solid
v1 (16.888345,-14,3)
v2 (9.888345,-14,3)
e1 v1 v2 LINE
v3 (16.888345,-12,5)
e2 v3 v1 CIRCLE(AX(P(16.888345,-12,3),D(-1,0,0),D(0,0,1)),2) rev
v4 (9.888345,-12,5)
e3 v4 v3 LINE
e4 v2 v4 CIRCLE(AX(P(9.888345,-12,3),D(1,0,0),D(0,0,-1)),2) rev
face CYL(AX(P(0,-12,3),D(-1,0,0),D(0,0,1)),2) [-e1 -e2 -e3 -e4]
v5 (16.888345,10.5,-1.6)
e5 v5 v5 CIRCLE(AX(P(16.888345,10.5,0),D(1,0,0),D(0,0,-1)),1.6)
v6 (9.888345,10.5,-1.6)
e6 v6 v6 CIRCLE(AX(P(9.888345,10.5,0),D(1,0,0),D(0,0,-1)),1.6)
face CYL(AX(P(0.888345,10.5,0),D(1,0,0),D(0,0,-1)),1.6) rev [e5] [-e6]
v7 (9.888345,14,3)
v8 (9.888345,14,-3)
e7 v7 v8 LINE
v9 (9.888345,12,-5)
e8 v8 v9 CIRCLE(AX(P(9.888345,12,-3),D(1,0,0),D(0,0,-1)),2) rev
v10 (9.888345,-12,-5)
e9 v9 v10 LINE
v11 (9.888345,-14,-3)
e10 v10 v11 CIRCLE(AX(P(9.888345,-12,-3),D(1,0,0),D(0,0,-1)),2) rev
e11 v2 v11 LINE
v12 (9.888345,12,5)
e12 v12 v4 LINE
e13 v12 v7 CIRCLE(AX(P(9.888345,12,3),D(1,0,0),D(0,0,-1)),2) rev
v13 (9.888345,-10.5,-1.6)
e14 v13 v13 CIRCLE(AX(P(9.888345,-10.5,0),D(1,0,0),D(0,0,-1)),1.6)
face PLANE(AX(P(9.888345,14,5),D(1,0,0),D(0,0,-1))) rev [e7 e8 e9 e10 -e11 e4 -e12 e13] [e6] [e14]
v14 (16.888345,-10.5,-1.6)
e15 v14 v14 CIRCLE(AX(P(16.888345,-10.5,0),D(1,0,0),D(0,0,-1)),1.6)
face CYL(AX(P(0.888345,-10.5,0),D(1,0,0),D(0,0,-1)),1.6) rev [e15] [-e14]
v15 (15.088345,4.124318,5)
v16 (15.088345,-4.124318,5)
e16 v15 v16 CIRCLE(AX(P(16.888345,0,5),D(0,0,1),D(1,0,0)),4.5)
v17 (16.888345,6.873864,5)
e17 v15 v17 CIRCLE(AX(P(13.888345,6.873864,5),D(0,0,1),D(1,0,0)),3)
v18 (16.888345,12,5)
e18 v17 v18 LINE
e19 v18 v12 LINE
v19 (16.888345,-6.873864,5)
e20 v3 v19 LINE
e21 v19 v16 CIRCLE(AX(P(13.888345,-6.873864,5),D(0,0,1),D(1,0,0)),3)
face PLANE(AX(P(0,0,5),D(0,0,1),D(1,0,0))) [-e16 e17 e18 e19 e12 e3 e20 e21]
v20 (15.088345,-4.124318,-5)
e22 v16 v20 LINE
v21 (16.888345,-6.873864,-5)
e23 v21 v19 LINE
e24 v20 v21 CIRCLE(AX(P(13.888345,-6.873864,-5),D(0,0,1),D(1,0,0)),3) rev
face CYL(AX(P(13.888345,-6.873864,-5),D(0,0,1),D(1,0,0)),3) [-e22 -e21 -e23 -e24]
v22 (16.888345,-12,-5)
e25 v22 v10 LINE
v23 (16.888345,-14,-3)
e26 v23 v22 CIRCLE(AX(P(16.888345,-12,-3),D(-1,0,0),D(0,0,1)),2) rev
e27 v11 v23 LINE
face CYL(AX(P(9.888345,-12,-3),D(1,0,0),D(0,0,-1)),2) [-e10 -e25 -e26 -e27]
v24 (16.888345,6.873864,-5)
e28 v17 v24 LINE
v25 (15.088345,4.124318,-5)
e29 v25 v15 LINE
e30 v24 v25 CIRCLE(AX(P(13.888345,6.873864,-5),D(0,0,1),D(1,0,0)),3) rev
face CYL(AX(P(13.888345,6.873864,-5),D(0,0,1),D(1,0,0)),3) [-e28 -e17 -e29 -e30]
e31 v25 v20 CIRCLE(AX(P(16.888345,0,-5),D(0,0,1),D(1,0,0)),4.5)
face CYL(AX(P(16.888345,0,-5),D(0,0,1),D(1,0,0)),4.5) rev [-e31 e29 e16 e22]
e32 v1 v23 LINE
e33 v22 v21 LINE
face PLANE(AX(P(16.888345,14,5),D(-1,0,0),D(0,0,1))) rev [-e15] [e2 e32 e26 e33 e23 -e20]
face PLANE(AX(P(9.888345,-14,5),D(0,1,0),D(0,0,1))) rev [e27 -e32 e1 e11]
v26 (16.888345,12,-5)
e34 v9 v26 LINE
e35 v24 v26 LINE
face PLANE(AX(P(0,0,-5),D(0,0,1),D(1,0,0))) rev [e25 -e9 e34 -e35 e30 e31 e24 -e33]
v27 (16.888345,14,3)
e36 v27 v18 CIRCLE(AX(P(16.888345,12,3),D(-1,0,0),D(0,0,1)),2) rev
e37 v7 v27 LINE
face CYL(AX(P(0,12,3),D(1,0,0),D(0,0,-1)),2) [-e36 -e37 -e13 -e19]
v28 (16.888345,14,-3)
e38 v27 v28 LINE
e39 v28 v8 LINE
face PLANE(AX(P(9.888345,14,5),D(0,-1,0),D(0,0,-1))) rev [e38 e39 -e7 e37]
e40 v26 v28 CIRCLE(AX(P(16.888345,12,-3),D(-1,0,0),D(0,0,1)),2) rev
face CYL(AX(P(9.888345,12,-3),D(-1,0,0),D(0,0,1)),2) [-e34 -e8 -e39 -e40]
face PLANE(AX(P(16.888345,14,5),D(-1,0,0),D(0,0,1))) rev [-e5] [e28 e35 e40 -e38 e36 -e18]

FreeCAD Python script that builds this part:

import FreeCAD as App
import Part
import Sketcher

V = App.Vector


def edges_at(feature, points):
    """Names of the edges that pass closest to the given points."""
    edges = feature.Shape.Edges
    near = lambda p: min(range(len(edges)), key=lambda i: edges[i].distToShape(Part.Vertex(*p))[0])
    return sorted({f"Edge{near(p) + 1}" for p in points})

doc = App.newDocument("Part")
params = doc.addObject("Spreadsheet::Sheet", "Params")
for row, (alias, value) in enumerate([
    ("sketch1_width", "12 mm"),
    ("sketch1_height", "2.1 mm"),
    ("pad1_length", "6 mm"),
    ("sketch2_width", "12 mm"),
    ("sketch2_height", "2.1 mm"),
    ("pad2_length", "6 mm"),
    ("sketch3_width", "4 mm"),
    ("sketch3_height", "6 mm"),
    ("pad3_length", "6 mm"),
    ("sketch4_width", "7 mm"),
    ("sketch4_height", "28 mm"),
    ("pad4_length", "10 mm"),
    ("sketch5_diameter", "9 mm"),
    ("fillet_radius", "3 mm"),
    ("fillet2_radius", "2 mm"),
    ("sketch6_diameter", "3.2 mm"),
    ("pocket2_length", "16 mm"),
    ("pad5_length", "30 mm"),
], start=1):
    params.set(f"A{row}", alias)
    params.set(f"B{row}", "=" + value)
    params.setAlias(f"B{row}", alias)

body = doc.addObject("PartDesign::Body", "Body")

# Sketch on XY plane
sketch1 = doc.addObject("Sketcher::SketchObject", "Sketch")
body.addObject(sketch1)
sketch1.AttachmentSupport = (doc.XY_Plane, [""])
sketch1.MapMode = "FlatFace"
sketch1.addGeometry(Part.LineSegment(V(-6, 3, 0), V(-6, 0.9, 0)), False)
sketch1.addGeometry(Part.LineSegment(V(-6, 0.9, 0), V(6, 0.9, 0)), False)
sketch1.addGeometry(Part.LineSegment(V(6, 0.9, 0), V(6, 3, 0)), False)
sketch1.addGeometry(Part.LineSegment(V(6, 3, 0), V(-6, 3, 0)), False)
sketch1.addConstraint(Sketcher.Constraint("Coincident", 0, 2, 1, 1))
sketch1.addConstraint(Sketcher.Constraint("Coincident", 1, 2, 2, 1))
sketch1.addConstraint(Sketcher.Constraint("Coincident", 2, 2, 3, 1))
sketch1.addConstraint(Sketcher.Constraint("Coincident", 3, 2, 0, 1))
sketch1.addConstraint(Sketcher.Constraint("Vertical", 0))
sketch1.addConstraint(Sketcher.Constraint("Horizontal", 1))
sketch1.addConstraint(Sketcher.Constraint("Vertical", 2))
sketch1.addConstraint(Sketcher.Constraint("Horizontal", 3))
sketch1.addConstraint(Sketcher.Constraint("DistanceX", 1, 1, 1, 2, 12.0))
sketch1.addConstraint(Sketcher.Constraint("DistanceY", 0, 2, 0, 1, 2.1))
sketch1.addConstraint(Sketcher.Constraint("DistanceX", 0, 2, -1, 1, 6.0))
sketch1.addConstraint(Sketcher.Constraint("DistanceY", -1, 1, 2, 2, 3.0))
sketch1.setExpression("Constraints[8]", "Params.sketch1_width")
sketch1.setExpression("Constraints[9]", "Params.sketch1_height")
pad1 = doc.addObject("PartDesign::Pad", "Pad")
body.addObject(pad1)
pad1.Profile = sketch1
pad1.setExpression("Length", "Params.pad1_length")
pad1.Midplane = True
body2 = doc.addObject("PartDesign::Body", "Body001")

# Sketch on XY plane
sketch2 = doc.addObject("Sketcher::SketchObject", "Sketch001")
body2.addObject(sketch2)
sketch2.AttachmentSupport = (doc.getObject("XY_Plane001"), [""])
sketch2.MapMode = "FlatFace"
sketch2.addGeometry(Part.LineSegment(V(-6, -0.9, 0), V(-6, -3, 0)), False)
sketch2.addGeometry(Part.LineSegment(V(-6, -3, 0), V(6, -3, 0)), False)
sketch2.addGeometry(Part.LineSegment(V(6, -3, 0), V(6, -0.9, 0)), False)
sketch2.addGeometry(Part.LineSegment(V(6, -0.9, 0), V(-6, -0.9, 0)), False)
sketch2.addConstraint(Sketcher.Constraint("Coincident", 0, 2, 1, 1))
sketch2.addConstraint(Sketcher.Constraint("Coincident", 1, 2, 2, 1))
sketch2.addConstraint(Sketcher.Constraint("Coincident", 2, 2, 3, 1))
sketch2.addConstraint(Sketcher.Constraint("Coincident", 3, 2, 0, 1))
sketch2.addConstraint(Sketcher.Constraint("Vertical", 0))
sketch2.addConstraint(Sketcher.Constraint("Horizontal", 1))
sketch2.addConstraint(Sketcher.Constraint("Vertical", 2))
sketch2.addConstraint(Sketcher.Constraint("Horizontal", 3))
sketch2.addConstraint(Sketcher.Constraint("DistanceX", 1, 1, 1, 2, 12.0))
sketch2.addConstraint(Sketcher.Constraint("DistanceY", 0, 2, 0, 1, 2.1))
sketch2.addConstraint(Sketcher.Constraint("DistanceX", 0, 2, -1, 1, 6.0))
sketch2.addConstraint(Sketcher.Constraint("DistanceY", 0, 2, -1, 1, 3.0))
sketch2.setExpression("Constraints[8]", "Params.sketch2_width")
sketch2.setExpression("Constraints[9]", "Params.sketch2_height")
pad2 = doc.addObject("PartDesign::Pad", "Pad001")
body2.addObject(pad2)
pad2.Profile = sketch2
pad2.setExpression("Length", "Params.pad2_length")
pad2.Midplane = True
body3 = doc.addObject("PartDesign::Body", "Body002")

# Sketch on XY plane
sketch3 = doc.addObject("Sketcher::SketchObject", "Sketch002")
body3.addObject(sketch3)
sketch3.AttachmentSupport = (doc.getObject("XY_Plane002"), [""])
sketch3.MapMode = "FlatFace"
sketch3.AttachmentOffset = App.Placement(V(0, 0, 3), App.Rotation())
sketch3.addGeometry(Part.LineSegment(V(6, 3, 0), V(6, -3, 0)), False)
sketch3.addGeometry(Part.LineSegment(V(6, -3, 0), V(10, -3, 0)), False)
sketch3.addGeometry(Part.LineSegment(V(10, -3, 0), V(10, 3, 0)), False)
sketch3.addGeometry(Part.LineSegment(V(10, 3, 0), V(6, 3, 0)), False)
sketch3.addConstraint(Sketcher.Constraint("Coincident", 0, 2, 1, 1))
sketch3.addConstraint(Sketcher.Constraint("Coincident", 1, 2, 2, 1))
sketch3.addConstraint(Sketcher.Constraint("Coincident", 2, 2, 3, 1))
sketch3.addConstraint(Sketcher.Constraint("Coincident", 3, 2, 0, 1))
sketch3.addConstraint(Sketcher.Constraint("Vertical", 0))
sketch3.addConstraint(Sketcher.Constraint("Horizontal", 1))
sketch3.addConstraint(Sketcher.Constraint("Vertical", 2))
sketch3.addConstraint(Sketcher.Constraint("Horizontal", 3))
sketch3.addConstraint(Sketcher.Constraint("DistanceX", 1, 1, 1, 2, 4.0))
sketch3.addConstraint(Sketcher.Constraint("DistanceY", 0, 2, 0, 1, 6.0))
sketch3.addConstraint(Sketcher.Constraint("DistanceX", -1, 1, 0, 2, 6.0))
sketch3.addConstraint(Sketcher.Constraint("DistanceY", 0, 2, -1, 1, 3.0))
sketch3.setExpression("Constraints[8]", "Params.sketch3_width")
sketch3.setExpression("Constraints[9]", "Params.sketch3_height")
pad3 = doc.addObject("PartDesign::Pad", "Pad002")
body3.addObject(pad3)
pad3.Profile = sketch3
pad3.setExpression("Length", "Params.pad3_length")
pad3.Reversed = True

# Sketch on XY plane
sketch4 = doc.addObject("Sketcher::SketchObject", "Sketch003")
body3.addObject(sketch4)
sketch4.AttachmentSupport = (doc.getObject("XY_Plane002"), [""])
sketch4.MapMode = "FlatFace"
sketch4.addGeometry(Part.LineSegment(V(10, 14, 0), V(10, -14, 0)), False)
sketch4.addGeometry(Part.LineSegment(V(10, -14, 0), V(17, -14, 0)), False)
sketch4.addGeometry(Part.LineSegment(V(17, -14, 0), V(17, 14, 0)), False)
sketch4.addGeometry(Part.LineSegment(V(17, 14, 0), V(10, 14, 0)), False)
sketch4.addConstraint(Sketcher.Constraint("Coincident", 0, 2, 1, 1))
sketch4.addConstraint(Sketcher.Constraint("Coincident", 1, 2, 2, 1))
sketch4.addConstraint(Sketcher.Constraint("Coincident", 2, 2, 3, 1))
sketch4.addConstraint(Sketcher.Constraint("Coincident", 3, 2, 0, 1))
sketch4.addConstraint(Sketcher.Constraint("Vertical", 0))
sketch4.addConstraint(Sketcher.Constraint("Horizontal", 1))
sketch4.addConstraint(Sketcher.Constraint("Vertical", 2))
sketch4.addConstraint(Sketcher.Constraint("Horizontal", 3))
sketch4.addConstraint(Sketcher.Constraint("DistanceX", 1, 1, 1, 2, 7.0))
sketch4.addConstraint(Sketcher.Constraint("DistanceY", 0, 2, 0, 1, 28.0))
sketch4.addConstraint(Sketcher.Constraint("DistanceY", 0, 2, -1, 1, 14.0))
sketch4.addConstraint(Sketcher.Constraint("DistanceX", -1, 1, 0, 2, 9.888345))
sketch4.setExpression("Constraints[8]", "Params.sketch4_width")
sketch4.setExpression("Constraints[9]", "Params.sketch4_height")
pad4 = doc.addObject("PartDesign::Pad", "Pad003")
body3.addObject(pad4)
pad4.Profile = sketch4
pad4.setExpression("Length", "Params.pad4_length")
pad4.Midplane = True

# Sketch on XY plane
sketch5 = doc.addObject("Sketcher::SketchObject", "Sketch004")
body3.addObject(sketch5)
sketch5.AttachmentSupport = (doc.getObject("XY_Plane002"), [""])
sketch5.MapMode = "FlatFace"
sketch5.AttachmentOffset = App.Placement(V(0, 0, 5), App.Rotation())
sketch5.addGeometry(Part.Circle(V(16.9, 0, 0), V(0, 0, 1), 4.5), False)
sketch5.addConstraint(Sketcher.Constraint("PointOnObject", 0, 3, -1))
sketch5.addConstraint(Sketcher.Constraint("Diameter", 0, 9.0))
sketch5.addConstraint(Sketcher.Constraint("DistanceX", -1, 1, 0, 3, 16.888345))
sketch5.setExpression("Constraints[1]", "Params.sketch5_diameter")
pocket1 = doc.addObject("PartDesign::Pocket", "Pocket")
body3.addObject(pocket1)
pocket1.Profile = sketch5
pocket1.Type = "ThroughAll"
pocket1.Midplane = True
doc.recompute()

fillet = doc.addObject("PartDesign::Fillet", "Fillet")
body3.addObject(fillet)
fillet.Base = (pocket1, edges_at(pocket1, [
    (9.888, -3, 0),
    (9.888, 3, 0),
    (16.888, -4.5, 0),
    (16.888, 4.5, 0),
]))
fillet.setExpression("Radius", "Params.fillet_radius")
doc.recompute()

fillet2 = doc.addObject("PartDesign::Fillet", "Fillet001")
body3.addObject(fillet2)
fillet2.Base = (fillet, edges_at(fillet, [
    (13.388, -14, -5),
    (13.388, 14, -5),
    (13.388, -14, 5),
    (13.388, 14, 5),
]))
fillet2.setExpression("Radius", "Params.fillet2_radius")

# Sketch on YZ plane
sketch6 = doc.addObject("Sketcher::SketchObject", "Sketch005")
body3.addObject(sketch6)
sketch6.AttachmentSupport = (doc.getObject("YZ_Plane002"), [""])
sketch6.MapMode = "FlatFace"
sketch6.AttachmentOffset = App.Placement(V(0, 0, 16.888345), App.Rotation())
sketch6.addGeometry(Part.Circle(V(10.5, 0, 0), V(0, 0, 1), 1.6), False)
sketch6.addGeometry(Part.Circle(V(-10.5, 0, 0), V(0, 0, 1), 1.6), False)
sketch6.addConstraint(Sketcher.Constraint("Equal", 0, 1))
sketch6.addConstraint(Sketcher.Constraint("Symmetric", 0, 3, 1, 3, -1, 1))
sketch6.addConstraint(Sketcher.Constraint("PointOnObject", 0, 3, -1))
sketch6.addConstraint(Sketcher.Constraint("Diameter", 0, 3.2))
sketch6.addConstraint(Sketcher.Constraint("DistanceX", 1, 3, 0, 3, 21.0))
sketch6.setExpression("Constraints[3]", "Params.sketch6_diameter")
pocket2 = doc.addObject("PartDesign::Pocket", "Pocket001")
body3.addObject(pocket2)
pocket2.Profile = sketch6
pocket2.setExpression("Length", "Params.pocket2_length")
body4 = doc.addObject("PartDesign::Body", "Body003")

# Sketch on XY plane
sketch7 = doc.addObject("Sketcher::SketchObject", "Sketch006")
body4.addObject(sketch7)
sketch7.AttachmentSupport = (doc.getObject("XY_Plane003"), [""])
sketch7.MapMode = "FlatFace"
sketch7.AttachmentOffset = App.Placement(V(0, 0, 5), App.Rotation())
sketch7.addGeometry(Part.LineSegment(V(-8, 12, 0), V(-8, -10, 0)), False)
sketch7.addGeometry(Part.LineSegment(V(-8, -10, 0), V(10, -10, 0)), False)
sketch7.addGeometry(Part.LineSegment(V(10, -10, 0), V(10, 12, 0)), False)
sketch7.addGeometry(Part.LineSegment(V(10, 12, 0), V(-8, 12, 0)), False)
sketch7.addConstraint(Sketcher.Constraint("Coincident", 0, 2, 1, 1))
sketch7.addConstraint(Sketcher.Constraint("Coincident", 1, 2, 2, 1))
sketch7.addConstraint(Sketcher.Constraint("Coincident", 2, 2, 3, 1))
sketch7.addConstraint(Sketcher.Constraint("Coincident", 3, 2, 0, 1))
sketch7.addConstraint(Sketcher.Constraint("Vertical", 0))
sketch7.addConstraint(Sketcher.Constraint("Horizontal", 1))
sketch7.addConstraint(Sketcher.Constraint("Vertical", 2))
sketch7.addConstraint(Sketcher.Constraint("Horizontal", 3))
sketch7.addConstraint(Sketcher.Constraint("DistanceY", -1, 1, 2, 2, 12.0))
sketch7.addConstraint(Sketcher.Constraint("DistanceX", 1, 1, 1, 2, 18.1075))
sketch7.addConstraint(Sketcher.Constraint("DistanceY", 0, 2, 0, 1, 21.771662))
sketch7.addConstraint(Sketcher.Constraint("DistanceX", 0, 2, -1, 1, 8.219154))
pad5 = doc.addObject("PartDesign::Pad", "Pad004")
body4.addObject(pad5)
pad5.Profile = sketch7
pad5.setExpression("Length", "Params.pad5_length")
pad5.Reversed = True
doc.recompute()

body5 = doc.addObject("PartDesign::Body", "Body004")
body5.BaseFeature = body4
boolean = doc.addObject("PartDesign::Boolean", "Boolean")
body.addObject(boolean)
boolean.Type = "Cut"
boolean.addObjects([body5])
doc.recompute()

body6 = doc.addObject("PartDesign::Body", "Body005")
body6.BaseFeature = body4
boolean2 = doc.addObject("PartDesign::Boolean", "Boolean001")
body2.addObject(boolean2)
boolean2.Type = "Cut"
boolean2.addObjects([body6])
doc.recompute()

boolean3 = doc.addObject("PartDesign::Boolean", "Boolean002")
body3.addObject(boolean3)
boolean3.Type = "Cut"
boolean3.addObjects([body4])

doc.recompute()
